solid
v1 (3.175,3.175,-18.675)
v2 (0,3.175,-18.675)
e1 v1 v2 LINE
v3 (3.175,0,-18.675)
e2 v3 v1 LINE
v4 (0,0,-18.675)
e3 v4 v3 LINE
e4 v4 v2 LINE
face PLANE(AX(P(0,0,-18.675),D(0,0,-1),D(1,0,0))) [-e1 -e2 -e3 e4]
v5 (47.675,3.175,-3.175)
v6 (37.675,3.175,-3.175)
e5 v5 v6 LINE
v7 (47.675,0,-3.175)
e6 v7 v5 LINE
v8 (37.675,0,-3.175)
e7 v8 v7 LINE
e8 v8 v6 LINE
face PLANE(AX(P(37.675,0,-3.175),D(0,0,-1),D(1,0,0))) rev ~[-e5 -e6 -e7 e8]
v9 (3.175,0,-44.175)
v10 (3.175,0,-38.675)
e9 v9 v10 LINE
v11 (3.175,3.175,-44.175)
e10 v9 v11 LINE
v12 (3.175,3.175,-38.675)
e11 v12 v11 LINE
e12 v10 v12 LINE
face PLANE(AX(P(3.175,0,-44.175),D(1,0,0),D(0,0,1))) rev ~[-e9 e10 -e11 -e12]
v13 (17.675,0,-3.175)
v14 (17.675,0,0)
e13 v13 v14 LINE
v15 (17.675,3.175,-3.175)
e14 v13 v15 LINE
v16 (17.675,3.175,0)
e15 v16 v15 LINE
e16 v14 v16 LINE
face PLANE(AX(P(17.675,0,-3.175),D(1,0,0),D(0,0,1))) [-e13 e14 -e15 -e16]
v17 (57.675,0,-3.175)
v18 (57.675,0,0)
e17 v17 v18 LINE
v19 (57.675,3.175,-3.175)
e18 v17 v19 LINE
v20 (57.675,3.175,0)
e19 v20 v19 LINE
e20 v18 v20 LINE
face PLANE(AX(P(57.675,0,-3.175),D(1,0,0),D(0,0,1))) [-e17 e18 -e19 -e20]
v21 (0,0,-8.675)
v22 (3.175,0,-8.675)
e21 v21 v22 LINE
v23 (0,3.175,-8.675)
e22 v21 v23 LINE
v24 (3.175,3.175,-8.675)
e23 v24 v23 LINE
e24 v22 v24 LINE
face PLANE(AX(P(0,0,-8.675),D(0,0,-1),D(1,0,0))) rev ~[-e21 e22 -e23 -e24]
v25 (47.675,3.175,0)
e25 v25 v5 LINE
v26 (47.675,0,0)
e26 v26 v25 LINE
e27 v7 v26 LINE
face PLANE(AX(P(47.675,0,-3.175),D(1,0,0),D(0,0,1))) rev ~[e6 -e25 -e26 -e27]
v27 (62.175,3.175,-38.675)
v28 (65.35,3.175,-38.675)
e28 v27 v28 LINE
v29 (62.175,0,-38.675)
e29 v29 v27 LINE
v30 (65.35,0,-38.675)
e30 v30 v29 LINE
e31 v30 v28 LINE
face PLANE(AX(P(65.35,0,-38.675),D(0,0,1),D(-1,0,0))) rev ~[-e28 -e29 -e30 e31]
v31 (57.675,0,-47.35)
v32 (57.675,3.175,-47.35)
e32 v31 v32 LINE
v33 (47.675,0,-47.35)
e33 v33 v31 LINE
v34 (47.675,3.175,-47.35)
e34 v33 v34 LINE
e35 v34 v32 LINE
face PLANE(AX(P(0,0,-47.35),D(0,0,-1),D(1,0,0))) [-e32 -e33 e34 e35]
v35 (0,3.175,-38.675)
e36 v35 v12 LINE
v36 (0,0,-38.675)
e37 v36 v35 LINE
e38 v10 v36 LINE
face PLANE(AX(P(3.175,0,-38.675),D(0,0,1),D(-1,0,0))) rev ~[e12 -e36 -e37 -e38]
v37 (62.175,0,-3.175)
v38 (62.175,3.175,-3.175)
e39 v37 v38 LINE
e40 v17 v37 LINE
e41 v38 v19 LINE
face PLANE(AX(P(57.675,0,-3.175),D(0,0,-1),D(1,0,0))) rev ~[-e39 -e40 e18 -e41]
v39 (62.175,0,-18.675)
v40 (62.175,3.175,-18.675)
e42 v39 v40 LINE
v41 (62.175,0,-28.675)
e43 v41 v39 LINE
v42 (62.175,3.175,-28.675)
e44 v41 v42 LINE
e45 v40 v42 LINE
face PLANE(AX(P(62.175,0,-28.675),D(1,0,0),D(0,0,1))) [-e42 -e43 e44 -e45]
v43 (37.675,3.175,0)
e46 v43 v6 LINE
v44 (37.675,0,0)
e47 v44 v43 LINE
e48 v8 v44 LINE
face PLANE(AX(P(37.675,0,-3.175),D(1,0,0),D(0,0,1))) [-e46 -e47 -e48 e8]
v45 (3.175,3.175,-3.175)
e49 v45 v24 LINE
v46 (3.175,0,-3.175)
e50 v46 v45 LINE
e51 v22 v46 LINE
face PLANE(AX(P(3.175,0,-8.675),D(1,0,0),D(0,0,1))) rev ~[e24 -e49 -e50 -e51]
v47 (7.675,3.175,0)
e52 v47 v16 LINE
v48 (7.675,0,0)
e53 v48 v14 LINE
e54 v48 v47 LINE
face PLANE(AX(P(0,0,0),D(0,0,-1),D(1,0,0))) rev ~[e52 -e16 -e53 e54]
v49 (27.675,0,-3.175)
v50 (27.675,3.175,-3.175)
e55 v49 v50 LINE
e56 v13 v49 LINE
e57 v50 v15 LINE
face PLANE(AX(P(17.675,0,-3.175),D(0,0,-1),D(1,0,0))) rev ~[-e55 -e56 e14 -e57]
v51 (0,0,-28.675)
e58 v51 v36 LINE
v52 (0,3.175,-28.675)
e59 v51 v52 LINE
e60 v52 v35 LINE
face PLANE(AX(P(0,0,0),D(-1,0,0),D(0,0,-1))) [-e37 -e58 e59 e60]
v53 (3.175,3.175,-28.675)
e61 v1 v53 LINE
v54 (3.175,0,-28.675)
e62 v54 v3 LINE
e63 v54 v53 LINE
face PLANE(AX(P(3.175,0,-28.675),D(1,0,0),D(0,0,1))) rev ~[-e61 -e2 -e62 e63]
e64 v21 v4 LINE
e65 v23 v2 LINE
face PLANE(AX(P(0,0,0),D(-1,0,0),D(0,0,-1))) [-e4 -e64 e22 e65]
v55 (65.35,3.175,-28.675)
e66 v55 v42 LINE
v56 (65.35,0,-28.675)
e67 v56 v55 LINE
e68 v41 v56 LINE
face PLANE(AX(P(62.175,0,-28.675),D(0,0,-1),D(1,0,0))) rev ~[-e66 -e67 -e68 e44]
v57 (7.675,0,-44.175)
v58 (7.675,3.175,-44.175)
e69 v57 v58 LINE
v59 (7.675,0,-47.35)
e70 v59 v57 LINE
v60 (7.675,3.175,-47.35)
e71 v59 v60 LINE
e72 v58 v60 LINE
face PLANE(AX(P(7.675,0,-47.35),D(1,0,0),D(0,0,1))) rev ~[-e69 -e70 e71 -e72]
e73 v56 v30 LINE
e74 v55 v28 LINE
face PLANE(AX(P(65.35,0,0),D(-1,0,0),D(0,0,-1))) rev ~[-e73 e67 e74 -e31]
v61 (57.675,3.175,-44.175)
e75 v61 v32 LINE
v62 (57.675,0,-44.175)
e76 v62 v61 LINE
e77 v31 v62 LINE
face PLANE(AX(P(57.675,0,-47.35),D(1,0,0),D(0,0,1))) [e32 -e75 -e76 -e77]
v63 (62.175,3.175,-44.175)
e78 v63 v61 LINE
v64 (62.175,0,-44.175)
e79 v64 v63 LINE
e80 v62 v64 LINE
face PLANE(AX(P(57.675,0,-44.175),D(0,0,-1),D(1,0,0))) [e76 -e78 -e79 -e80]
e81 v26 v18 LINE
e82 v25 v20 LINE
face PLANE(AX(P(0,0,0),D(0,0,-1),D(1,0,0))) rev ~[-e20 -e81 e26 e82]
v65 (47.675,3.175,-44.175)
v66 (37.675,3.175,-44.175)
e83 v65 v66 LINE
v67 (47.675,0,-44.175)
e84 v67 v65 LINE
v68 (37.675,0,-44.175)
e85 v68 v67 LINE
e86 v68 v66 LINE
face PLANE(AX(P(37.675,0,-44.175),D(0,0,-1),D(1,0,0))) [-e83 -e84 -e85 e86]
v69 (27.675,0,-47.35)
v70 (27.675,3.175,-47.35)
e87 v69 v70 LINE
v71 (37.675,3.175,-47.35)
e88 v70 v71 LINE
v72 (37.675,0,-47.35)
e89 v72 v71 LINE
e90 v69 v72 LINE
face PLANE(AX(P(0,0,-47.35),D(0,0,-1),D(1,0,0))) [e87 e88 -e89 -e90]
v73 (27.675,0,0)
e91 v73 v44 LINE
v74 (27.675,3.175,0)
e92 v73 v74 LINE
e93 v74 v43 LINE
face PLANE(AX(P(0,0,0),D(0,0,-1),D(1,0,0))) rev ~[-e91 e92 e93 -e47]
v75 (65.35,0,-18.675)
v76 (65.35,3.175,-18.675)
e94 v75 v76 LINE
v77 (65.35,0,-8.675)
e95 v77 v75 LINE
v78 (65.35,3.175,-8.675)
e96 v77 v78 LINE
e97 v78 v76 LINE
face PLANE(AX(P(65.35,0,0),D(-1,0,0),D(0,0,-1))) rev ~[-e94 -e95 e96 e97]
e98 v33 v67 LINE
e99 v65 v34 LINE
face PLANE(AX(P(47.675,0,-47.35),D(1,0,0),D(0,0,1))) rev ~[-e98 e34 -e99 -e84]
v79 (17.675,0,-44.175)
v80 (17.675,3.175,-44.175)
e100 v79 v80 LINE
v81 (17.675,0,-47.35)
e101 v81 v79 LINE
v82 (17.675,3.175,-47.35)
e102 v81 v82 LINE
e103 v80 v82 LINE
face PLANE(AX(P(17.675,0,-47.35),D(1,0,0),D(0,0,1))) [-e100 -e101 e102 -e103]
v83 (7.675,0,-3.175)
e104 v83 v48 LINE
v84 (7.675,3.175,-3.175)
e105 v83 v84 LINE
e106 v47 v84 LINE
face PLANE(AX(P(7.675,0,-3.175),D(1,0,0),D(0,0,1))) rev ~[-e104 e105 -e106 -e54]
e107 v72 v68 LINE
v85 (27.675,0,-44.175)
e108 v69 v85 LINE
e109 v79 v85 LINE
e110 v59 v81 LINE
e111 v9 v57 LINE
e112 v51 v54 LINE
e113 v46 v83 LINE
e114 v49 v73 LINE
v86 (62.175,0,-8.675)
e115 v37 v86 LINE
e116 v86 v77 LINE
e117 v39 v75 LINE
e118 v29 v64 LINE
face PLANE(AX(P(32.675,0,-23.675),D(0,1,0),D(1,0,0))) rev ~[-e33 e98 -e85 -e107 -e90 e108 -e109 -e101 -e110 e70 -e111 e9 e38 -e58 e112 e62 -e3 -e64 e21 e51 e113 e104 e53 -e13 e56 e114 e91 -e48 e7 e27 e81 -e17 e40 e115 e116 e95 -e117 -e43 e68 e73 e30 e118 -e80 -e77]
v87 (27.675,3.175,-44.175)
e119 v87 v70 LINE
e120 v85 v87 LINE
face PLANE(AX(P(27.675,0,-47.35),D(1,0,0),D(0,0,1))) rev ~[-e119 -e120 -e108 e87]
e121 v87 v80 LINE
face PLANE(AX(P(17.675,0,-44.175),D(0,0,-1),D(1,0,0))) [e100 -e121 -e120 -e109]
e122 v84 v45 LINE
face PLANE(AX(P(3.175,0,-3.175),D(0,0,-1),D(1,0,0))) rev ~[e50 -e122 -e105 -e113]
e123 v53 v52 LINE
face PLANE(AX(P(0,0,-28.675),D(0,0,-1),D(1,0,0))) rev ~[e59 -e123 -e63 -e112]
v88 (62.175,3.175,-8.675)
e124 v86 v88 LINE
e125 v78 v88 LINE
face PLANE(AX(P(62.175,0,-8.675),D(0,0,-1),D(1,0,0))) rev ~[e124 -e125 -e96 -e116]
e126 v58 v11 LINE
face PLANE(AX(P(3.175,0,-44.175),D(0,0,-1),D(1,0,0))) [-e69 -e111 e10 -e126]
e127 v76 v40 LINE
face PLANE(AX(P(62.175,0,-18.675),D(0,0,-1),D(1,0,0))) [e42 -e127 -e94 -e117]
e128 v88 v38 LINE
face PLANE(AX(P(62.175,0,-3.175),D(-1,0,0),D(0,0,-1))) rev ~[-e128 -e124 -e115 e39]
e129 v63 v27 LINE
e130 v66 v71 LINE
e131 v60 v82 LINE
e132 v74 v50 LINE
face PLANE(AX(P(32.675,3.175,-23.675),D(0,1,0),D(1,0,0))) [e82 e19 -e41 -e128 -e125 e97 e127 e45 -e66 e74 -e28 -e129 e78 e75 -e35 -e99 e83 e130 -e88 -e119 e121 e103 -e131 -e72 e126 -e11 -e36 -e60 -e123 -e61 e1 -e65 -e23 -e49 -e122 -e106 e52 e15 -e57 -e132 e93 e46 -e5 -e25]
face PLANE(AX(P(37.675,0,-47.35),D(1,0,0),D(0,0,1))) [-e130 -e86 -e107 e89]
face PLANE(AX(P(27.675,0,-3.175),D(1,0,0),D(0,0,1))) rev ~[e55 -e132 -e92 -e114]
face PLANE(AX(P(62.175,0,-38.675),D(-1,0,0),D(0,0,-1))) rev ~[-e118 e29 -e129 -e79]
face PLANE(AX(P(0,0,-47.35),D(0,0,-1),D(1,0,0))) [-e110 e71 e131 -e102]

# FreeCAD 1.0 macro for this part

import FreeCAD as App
import Part
import Sketcher
from FreeCAD import Vector
Q = App.Units.Quantity

doc = App.newDocument("Part")
body = doc.addObject("PartDesign::Body", "Body")

sketch1 = body.newObject("Sketcher::SketchObject", "Sketch")
sketch1.AttachmentSupport = (doc.getObject("XZ_Plane"), [""])
sketch1.MapMode = "FlatFace"
sketch1.addGeometry([
    Part.LineSegment(Vector(0, -47.35, 0), Vector(0, 0, 0)),
    Part.LineSegment(Vector(0, 0, 0), Vector(65.35, 0, 0)),
    Part.LineSegment(Vector(65.35, 0, 0), Vector(65.35, -47.35, 0)),
    Part.LineSegment(Vector(65.35, -47.35, 0), Vector(0, -47.35, 0)),
], False)
sketch1.addConstraint([
    Sketcher.Constraint("Coincident", 0, 2, 1, 1),
    Sketcher.Constraint("Coincident", 1, 2, 2, 1),
    Sketcher.Constraint("Coincident", 2, 2, 3, 1),
    Sketcher.Constraint("Coincident", 3, 2, 0, 1),
    Sketcher.Constraint("Vertical", 0),
    Sketcher.Constraint("Horizontal", 1),
    Sketcher.Constraint("Vertical", 2),
    Sketcher.Constraint("Horizontal", 3),
    Sketcher.Constraint("Coincident", 0, 2, -1, 1),
    Sketcher.Constraint("DistanceX", 1, 1, 1, 2, Q("65.35 mm")),
    Sketcher.Constraint("DistanceY", 0, 1, 0, 2, Q("47.35 mm")),
])
pad1 = body.newObject("PartDesign::Pad", "Pad")
pad1.Profile = sketch1
pad1.Length = 3.175
pad1.Reversed = True

sketch2 = body.newObject("Sketcher::SketchObject", "Sketch001")
sketch2.AttachmentSupport = (doc.getObject("XZ_Plane"), [""])
sketch2.MapMode = "FlatFace"
sketch2.addGeometry([
    Part.LineSegment(Vector(57.675, -44.175, 0), Vector(57.675, -47.35, 0)),
    Part.LineSegment(Vector(57.675, -47.35, 0), Vector(65.35, -47.35, 0)),
    Part.LineSegment(Vector(65.35, -47.35, 0), Vector(65.35, -38.675, 0)),
    Part.LineSegment(Vector(65.35, -38.675, 0), Vector(62.175, -38.675, 0)),
    Part.LineSegment(Vector(62.175, -38.675, 0), Vector(62.175, -44.175, 0)),
    Part.LineSegment(Vector(62.175, -44.175, 0), Vector(57.675, -44.175, 0)),
    Part.LineSegment(Vector(62.175, -18.675, 0), Vector(62.175, -28.675, 0)),
    Part.LineSegment(Vector(62.175, -28.675, 0), Vector(65.35, -28.675, 0)),
    Part.LineSegment(Vector(65.35, -28.675, 0), Vector(65.35, -18.675, 0)),
    Part.LineSegment(Vector(65.35, -18.675, 0), Vector(62.175, -18.675, 0)),
    Part.LineSegment(Vector(62.175, -8.675, 0), Vector(65.35, -8.675, 0)),
    Part.LineSegment(Vector(65.35, -8.675, 0), Vector(65.35, 0, 0)),
    Part.LineSegment(Vector(65.35, 0, 0), Vector(57.675, 0, 0)),
    Part.LineSegment(Vector(57.675, 0, 0), Vector(57.675, -3.175, 0)),
    Part.LineSegment(Vector(57.675, -3.175, 0), Vector(62.175, -3.175, 0)),
    Part.LineSegment(Vector(62.175, -3.175, 0), Vector(62.175, -8.675, 0)),
    Part.LineSegment(Vector(37.675, 0, 0), Vector(37.675, -3.175, 0)),
    Part.LineSegment(Vector(37.675, -3.175, 0), Vector(47.675, -3.175, 0)),
    Part.LineSegment(Vector(47.675, -3.175, 0), Vector(47.675, 0, 0)),
    Part.LineSegment(Vector(47.675, 0, 0), Vector(37.675, 0, 0)),
    Part.LineSegment(Vector(37.675, -44.175, 0), Vector(37.675, -47.35, 0)),
    Part.LineSegment(Vector(37.675, -47.35, 0), Vector(47.675, -47.35, 0)),
    Part.LineSegment(Vector(47.675, -47.35, 0), Vector(47.675, -44.175, 0)),
    Part.LineSegment(Vector(47.675, -44.175, 0), Vector(37.675, -44.175, 0)),
    Part.LineSegment(Vector(17.675, -44.175, 0), Vector(17.675, -47.35, 0)),
    Part.LineSegment(Vector(17.675, -47.35, 0), Vector(27.675, -47.35, 0)),
    Part.LineSegment(Vector(27.675, -47.35, 0), Vector(27.675, -44.175, 0)),
    Part.LineSegment(Vector(27.675, -44.175, 0), Vector(17.675, -44.175, 0)),
    Part.LineSegment(Vector(7.675, -47.35, 0), Vector(7.675, -44.175, 0)),
    Part.LineSegment(Vector(7.675, -44.175, 0), Vector(3.175, -44.175, 0)),
    Part.LineSegment(Vector(3.175, -44.175, 0), Vector(3.175, -38.675, 0)),
    Part.LineSegment(Vector(3.175, -38.675, 0), Vector(0, -38.675, 0)),
    Part.LineSegment(Vector(0, -38.675, 0), Vector(0, -47.35, 0)),
    Part.LineSegment(Vector(0, -47.35, 0), Vector(7.675, -47.35, 0)),
    Part.LineSegment(Vector(0, -18.675, 0), Vector(0, -28.675, 0)),
    Part.LineSegment(Vector(0, -28.675, 0), Vector(3.175, -28.675, 0)),
    Part.LineSegment(Vector(3.175, -28.675, 0), Vector(3.175, -18.675, 0)),
    Part.LineSegment(Vector(3.175, -18.675, 0), Vector(0, -18.675, 0)),
    Part.LineSegment(Vector(0, 0, 0), Vector(0, -8.675, 0)),
    Part.LineSegment(Vector(0, -8.675, 0), Vector(3.175, -8.675, 0)),
    Part.LineSegment(Vector(3.175, -8.675, 0), Vector(3.175, -3.175, 0)),
    Part.LineSegment(Vector(3.175, -3.175, 0), Vector(7.675, -3.175, 0)),
    Part.LineSegment(Vector(7.675, -3.175, 0), Vector(7.675, 0, 0)),
    Part.LineSegment(Vector(7.675, 0, 0), Vector(0, 0, 0)),
    Part.LineSegment(Vector(17.675, 0, 0), Vector(17.675, -3.175, 0)),
    Part.LineSegment(Vector(17.675, -3.175, 0), Vector(27.675, -3.175, 0)),
    Part.LineSegment(Vector(27.675, -3.175, 0), Vector(27.675, 0, 0)),
    Part.LineSegment(Vector(27.675, 0, 0), Vector(17.675, 0, 0)),
], False)
sketch2.addConstraint([
    Sketcher.Constraint("Coincident", 0, 2, 1, 1),
    Sketcher.Constraint("Coincident", 1, 2, 2, 1),
    Sketcher.Constraint("Coincident", 2, 2, 3, 1),
    Sketcher.Constraint("Coincident", 3, 2, 4, 1),
    Sketcher.Constraint("Coincident", 4, 2, 5, 1),
    Sketcher.Constraint("Coincident", 5, 2, 0, 1),
    Sketcher.Constraint("Coincident", 6, 2, 7, 1),
    Sketcher.Constraint("Coincident", 7, 2, 8, 1),
    Sketcher.Constraint("Coincident", 8, 2, 9, 1),
    Sketcher.Constraint("Coincident", 9, 2, 6, 1),
    Sketcher.Constraint("Coincident", 10, 2, 11, 1),
    Sketcher.Constraint("Coincident", 11, 2, 12, 1),
    Sketcher.Constraint("Coincident", 12, 2, 13, 1),
    Sketcher.Constraint("Coincident", 13, 2, 14, 1),
    Sketcher.Constraint("Coincident", 14, 2, 15, 1),
    Sketcher.Constraint("Coincident", 15, 2, 10, 1),
    Sketcher.Constraint("Coincident", 16, 2, 17, 1),
    Sketcher.Constraint("Coincident", 17, 2, 18, 1),
    Sketcher.Constraint("Coincident", 18, 2, 19, 1),
    Sketcher.Constraint("Coincident", 19, 2, 16, 1),
    Sketcher.Constraint("Coincident", 20, 2, 21, 1),
    Sketcher.Constraint("Coincident", 21, 2, 22, 1),
    Sketcher.Constraint("Coincident", 22, 2, 23, 1),
    Sketcher.Constraint("Coincident", 23, 2, 20, 1),
    Sketcher.Constraint("Coincident", 24, 2, 25, 1),
    Sketcher.Constraint("Coincident", 25, 2, 26, 1),
    Sketcher.Constraint("Coincident", 26, 2, 27, 1),
    Sketcher.Constraint("Coincident", 27, 2, 24, 1),
    Sketcher.Constraint("Coincident", 28, 2, 29, 1),
    Sketcher.Constraint("Coincident", 29, 2, 30, 1),
    Sketcher.Constraint("Coincident", 30, 2, 31, 1),
    Sketcher.Constraint("Coincident", 31, 2, 32, 1),
    Sketcher.Constraint("Coincident", 32, 2, 33, 1),
    Sketcher.Constraint("Coincident", 33, 2, 28, 1),
    Sketcher.Constraint("Coincident", 34, 2, 35, 1),
    Sketcher.Constraint("Coincident", 35, 2, 36, 1),
    Sketcher.Constraint("Coincident", 36, 2, 37, 1),
    Sketcher.Constraint("Coincident", 37, 2, 34, 1),
    Sketcher.Constraint("Coincident", 38, 2, 39, 1),
    Sketcher.Constraint("Coincident", 39, 2, 40, 1),
    Sketcher.Constraint("Coincident", 40, 2, 41, 1),
    Sketcher.Constraint("Coincident", 41, 2, 42, 1),
    Sketcher.Constraint("Coincident", 42, 2, 43, 1),
    Sketcher.Constraint("Coincident", 43, 2, 38, 1),
    Sketcher.Constraint("Coincident", 44, 2, 45, 1),
    Sketcher.Constraint("Coincident", 45, 2, 46, 1),
    Sketcher.Constraint("Coincident", 46, 2, 47, 1),
    Sketcher.Constraint("Coincident", 47, 2, 44, 1),
    Sketcher.Constraint("Vertical", 0),
    Sketcher.Constraint("Horizontal", 1),
    Sketcher.Constraint("Vertical", 2),
    Sketcher.Constraint("Horizontal", 3),
    Sketcher.Constraint("Vertical", 4),
    Sketcher.Constraint("Horizontal", 5),
    Sketcher.Constraint("Vertical", 6),
    Sketcher.Constraint("Horizontal", 7),
    Sketcher.Constraint("Vertical", 8),
    Sketcher.Constraint("Horizontal", 9),
    Sketcher.Constraint("Horizontal", 10),
    Sketcher.Constraint("Vertical", 11),
    Sketcher.Constraint("Horizontal", 12),
    Sketcher.Constraint("Vertical", 13),
    Sketcher.Constraint("Horizontal", 14),
    Sketcher.Constraint("Vertical", 15),
    Sketcher.Constraint("Vertical", 16),
    Sketcher.Constraint("Horizontal", 17),
    Sketcher.Constraint("Vertical", 18),
    Sketcher.Constraint("Horizontal", 19),
    Sketcher.Constraint("Vertical", 20),
    Sketcher.Constraint("Horizontal", 21),
    Sketcher.Constraint("Vertical", 22),
    Sketcher.Constraint("Horizontal", 23),
    Sketcher.Constraint("Vertical", 24),
    Sketcher.Constraint("Horizontal", 25),
    Sketcher.Constraint("Vertical", 26),
    Sketcher.Constraint("Horizontal", 27),
    Sketcher.Constraint("Vertical", 28),
    Sketcher.Constraint("Horizontal", 29),
    Sketcher.Constraint("Vertical", 30),
    Sketcher.Constraint("Horizontal", 31),
    Sketcher.Constraint("Vertical", 32),
    Sketcher.Constraint("Horizontal", 33),
    Sketcher.Constraint("Vertical", 34),
    Sketcher.Constraint("Horizontal", 35),
    Sketcher.Constraint("Vertical", 36),
    Sketcher.Constraint("Horizontal", 37),
    Sketcher.Constraint("Vertical", 38),
    Sketcher.Constraint("Horizontal", 39),
    Sketcher.Constraint("Vertical", 40),
    Sketcher.Constraint("Horizontal", 41),
    Sketcher.Constraint("Vertical", 42),
    Sketcher.Constraint("Horizontal", 43),
    Sketcher.Constraint("Vertical", 44),
    Sketcher.Constraint("Horizontal", 45),
    Sketcher.Constraint("Vertical", 46),
    Sketcher.Constraint("Horizontal", 47),
    Sketcher.Constraint("Coincident", 43, 2, -1, 1),
    Sketcher.Constraint("PointOnObject", 11, 2, -1),
    Sketcher.Constraint("PointOnObject", 18, 2, -1),
    Sketcher.Constraint("PointOnObject", 31, 2, -2),
    Sketcher.Constraint("PointOnObject", 34, 2, -2),
    Sketcher.Constraint("PointOnObject", 46, 2, -1),
    Sketcher.Constraint("Horizontal", 14, 2, 16, 2),
    Sketcher.Constraint("Horizontal", 1, 2, 20, 2),
    Sketcher.Constraint("Horizontal", 5, 2, 22, 2),
    Sketcher.Constraint("Horizontal", 21, 2, 24, 2),
    Sketcher.Constraint("Horizontal", 23, 2, 26, 2),
    Sketcher.Constraint("Horizontal", 27, 2, 28, 2),
    Sketcher.Constraint("Horizontal", 3, 2, 30, 2),
    Sketcher.Constraint("Horizontal", 25, 2, 32, 2),
    Sketcher.Constraint("Horizontal", 7, 2, 34, 2),
    Sketcher.Constraint("Horizontal", 9, 2, 36, 2),
    Sketcher.Constraint("Horizontal", 15, 2, 38, 2),
    Sketcher.Constraint("Horizontal", 17, 2, 40, 2),
    Sketcher.Constraint("Horizontal", 41, 2, 44, 2),
    Sketcher.Constraint("Vertical", 4, 2, 6, 2),
    Sketcher.Constraint("Vertical", 2, 2, 7, 2),
    Sketcher.Constraint("Vertical", 8, 2, 10, 2),
    Sketcher.Constraint("Vertical", 5, 2, 12, 2),
    Sketcher.Constraint("Vertical", 9, 2, 14, 2),
    Sketcher.Constraint("Vertical", 19, 2, 20, 2),
    Sketcher.Constraint("Vertical", 18, 2, 21, 2),
    Sketcher.Constraint("Vertical", 30, 2, 35, 2),
    Sketcher.Constraint("Vertical", 36, 2, 39, 2),
    Sketcher.Constraint("Vertical", 33, 2, 41, 2),
    Sketcher.Constraint("Vertical", 27, 2, 44, 2),
    Sketcher.Constraint("Vertical", 26, 2, 45, 2),
    Sketcher.Constraint("Equal", 23, 25),
    Sketcher.Constraint("Equal", 14, 29),
    Sketcher.Constraint("Equal", 10, 31),
    Sketcher.Constraint("Equal", 39, 0),
    Sketcher.Constraint("Equal", 47, 6),
    Sketcher.Constraint("Equal", 2, 11),
    Sketcher.Constraint("Equal", 0, 13),
    Sketcher.Constraint("DistanceX", 17, 1, 17, 2, Q("10 mm")),
    Sketcher.Constraint("DistanceX", 5, 2, 5, 1, Q("4.5 mm")),
    Sketcher.Constraint("DistanceY", 4, 2, 4, 1, Q("5.5 mm")),
    Sketcher.Constraint("DistanceY", 3, 2, 6, 2, Q("10 mm")),
    Sketcher.Constraint("DistanceY", 8, 2, 10, 2, Q("10 mm")),
    Sketcher.Constraint("DistanceX", 16, 2, 13, 2, Q("20 mm")),
    Sketcher.Constraint("DistanceX", 24, 2, 20, 2, Q("20 mm")),
    Sketcher.Constraint("DistanceX", 28, 2, 27, 2, Q("10 mm")),
    Sketcher.Constraint("DistanceX", 1, 1, 1, 2, Q("7.675 mm")),
])
pocket1 = body.newObject("PartDesign::Pocket", "Pocket")
pocket1.Profile = sketch2
pocket1.Type = "ThroughAll"

doc.recompute()
